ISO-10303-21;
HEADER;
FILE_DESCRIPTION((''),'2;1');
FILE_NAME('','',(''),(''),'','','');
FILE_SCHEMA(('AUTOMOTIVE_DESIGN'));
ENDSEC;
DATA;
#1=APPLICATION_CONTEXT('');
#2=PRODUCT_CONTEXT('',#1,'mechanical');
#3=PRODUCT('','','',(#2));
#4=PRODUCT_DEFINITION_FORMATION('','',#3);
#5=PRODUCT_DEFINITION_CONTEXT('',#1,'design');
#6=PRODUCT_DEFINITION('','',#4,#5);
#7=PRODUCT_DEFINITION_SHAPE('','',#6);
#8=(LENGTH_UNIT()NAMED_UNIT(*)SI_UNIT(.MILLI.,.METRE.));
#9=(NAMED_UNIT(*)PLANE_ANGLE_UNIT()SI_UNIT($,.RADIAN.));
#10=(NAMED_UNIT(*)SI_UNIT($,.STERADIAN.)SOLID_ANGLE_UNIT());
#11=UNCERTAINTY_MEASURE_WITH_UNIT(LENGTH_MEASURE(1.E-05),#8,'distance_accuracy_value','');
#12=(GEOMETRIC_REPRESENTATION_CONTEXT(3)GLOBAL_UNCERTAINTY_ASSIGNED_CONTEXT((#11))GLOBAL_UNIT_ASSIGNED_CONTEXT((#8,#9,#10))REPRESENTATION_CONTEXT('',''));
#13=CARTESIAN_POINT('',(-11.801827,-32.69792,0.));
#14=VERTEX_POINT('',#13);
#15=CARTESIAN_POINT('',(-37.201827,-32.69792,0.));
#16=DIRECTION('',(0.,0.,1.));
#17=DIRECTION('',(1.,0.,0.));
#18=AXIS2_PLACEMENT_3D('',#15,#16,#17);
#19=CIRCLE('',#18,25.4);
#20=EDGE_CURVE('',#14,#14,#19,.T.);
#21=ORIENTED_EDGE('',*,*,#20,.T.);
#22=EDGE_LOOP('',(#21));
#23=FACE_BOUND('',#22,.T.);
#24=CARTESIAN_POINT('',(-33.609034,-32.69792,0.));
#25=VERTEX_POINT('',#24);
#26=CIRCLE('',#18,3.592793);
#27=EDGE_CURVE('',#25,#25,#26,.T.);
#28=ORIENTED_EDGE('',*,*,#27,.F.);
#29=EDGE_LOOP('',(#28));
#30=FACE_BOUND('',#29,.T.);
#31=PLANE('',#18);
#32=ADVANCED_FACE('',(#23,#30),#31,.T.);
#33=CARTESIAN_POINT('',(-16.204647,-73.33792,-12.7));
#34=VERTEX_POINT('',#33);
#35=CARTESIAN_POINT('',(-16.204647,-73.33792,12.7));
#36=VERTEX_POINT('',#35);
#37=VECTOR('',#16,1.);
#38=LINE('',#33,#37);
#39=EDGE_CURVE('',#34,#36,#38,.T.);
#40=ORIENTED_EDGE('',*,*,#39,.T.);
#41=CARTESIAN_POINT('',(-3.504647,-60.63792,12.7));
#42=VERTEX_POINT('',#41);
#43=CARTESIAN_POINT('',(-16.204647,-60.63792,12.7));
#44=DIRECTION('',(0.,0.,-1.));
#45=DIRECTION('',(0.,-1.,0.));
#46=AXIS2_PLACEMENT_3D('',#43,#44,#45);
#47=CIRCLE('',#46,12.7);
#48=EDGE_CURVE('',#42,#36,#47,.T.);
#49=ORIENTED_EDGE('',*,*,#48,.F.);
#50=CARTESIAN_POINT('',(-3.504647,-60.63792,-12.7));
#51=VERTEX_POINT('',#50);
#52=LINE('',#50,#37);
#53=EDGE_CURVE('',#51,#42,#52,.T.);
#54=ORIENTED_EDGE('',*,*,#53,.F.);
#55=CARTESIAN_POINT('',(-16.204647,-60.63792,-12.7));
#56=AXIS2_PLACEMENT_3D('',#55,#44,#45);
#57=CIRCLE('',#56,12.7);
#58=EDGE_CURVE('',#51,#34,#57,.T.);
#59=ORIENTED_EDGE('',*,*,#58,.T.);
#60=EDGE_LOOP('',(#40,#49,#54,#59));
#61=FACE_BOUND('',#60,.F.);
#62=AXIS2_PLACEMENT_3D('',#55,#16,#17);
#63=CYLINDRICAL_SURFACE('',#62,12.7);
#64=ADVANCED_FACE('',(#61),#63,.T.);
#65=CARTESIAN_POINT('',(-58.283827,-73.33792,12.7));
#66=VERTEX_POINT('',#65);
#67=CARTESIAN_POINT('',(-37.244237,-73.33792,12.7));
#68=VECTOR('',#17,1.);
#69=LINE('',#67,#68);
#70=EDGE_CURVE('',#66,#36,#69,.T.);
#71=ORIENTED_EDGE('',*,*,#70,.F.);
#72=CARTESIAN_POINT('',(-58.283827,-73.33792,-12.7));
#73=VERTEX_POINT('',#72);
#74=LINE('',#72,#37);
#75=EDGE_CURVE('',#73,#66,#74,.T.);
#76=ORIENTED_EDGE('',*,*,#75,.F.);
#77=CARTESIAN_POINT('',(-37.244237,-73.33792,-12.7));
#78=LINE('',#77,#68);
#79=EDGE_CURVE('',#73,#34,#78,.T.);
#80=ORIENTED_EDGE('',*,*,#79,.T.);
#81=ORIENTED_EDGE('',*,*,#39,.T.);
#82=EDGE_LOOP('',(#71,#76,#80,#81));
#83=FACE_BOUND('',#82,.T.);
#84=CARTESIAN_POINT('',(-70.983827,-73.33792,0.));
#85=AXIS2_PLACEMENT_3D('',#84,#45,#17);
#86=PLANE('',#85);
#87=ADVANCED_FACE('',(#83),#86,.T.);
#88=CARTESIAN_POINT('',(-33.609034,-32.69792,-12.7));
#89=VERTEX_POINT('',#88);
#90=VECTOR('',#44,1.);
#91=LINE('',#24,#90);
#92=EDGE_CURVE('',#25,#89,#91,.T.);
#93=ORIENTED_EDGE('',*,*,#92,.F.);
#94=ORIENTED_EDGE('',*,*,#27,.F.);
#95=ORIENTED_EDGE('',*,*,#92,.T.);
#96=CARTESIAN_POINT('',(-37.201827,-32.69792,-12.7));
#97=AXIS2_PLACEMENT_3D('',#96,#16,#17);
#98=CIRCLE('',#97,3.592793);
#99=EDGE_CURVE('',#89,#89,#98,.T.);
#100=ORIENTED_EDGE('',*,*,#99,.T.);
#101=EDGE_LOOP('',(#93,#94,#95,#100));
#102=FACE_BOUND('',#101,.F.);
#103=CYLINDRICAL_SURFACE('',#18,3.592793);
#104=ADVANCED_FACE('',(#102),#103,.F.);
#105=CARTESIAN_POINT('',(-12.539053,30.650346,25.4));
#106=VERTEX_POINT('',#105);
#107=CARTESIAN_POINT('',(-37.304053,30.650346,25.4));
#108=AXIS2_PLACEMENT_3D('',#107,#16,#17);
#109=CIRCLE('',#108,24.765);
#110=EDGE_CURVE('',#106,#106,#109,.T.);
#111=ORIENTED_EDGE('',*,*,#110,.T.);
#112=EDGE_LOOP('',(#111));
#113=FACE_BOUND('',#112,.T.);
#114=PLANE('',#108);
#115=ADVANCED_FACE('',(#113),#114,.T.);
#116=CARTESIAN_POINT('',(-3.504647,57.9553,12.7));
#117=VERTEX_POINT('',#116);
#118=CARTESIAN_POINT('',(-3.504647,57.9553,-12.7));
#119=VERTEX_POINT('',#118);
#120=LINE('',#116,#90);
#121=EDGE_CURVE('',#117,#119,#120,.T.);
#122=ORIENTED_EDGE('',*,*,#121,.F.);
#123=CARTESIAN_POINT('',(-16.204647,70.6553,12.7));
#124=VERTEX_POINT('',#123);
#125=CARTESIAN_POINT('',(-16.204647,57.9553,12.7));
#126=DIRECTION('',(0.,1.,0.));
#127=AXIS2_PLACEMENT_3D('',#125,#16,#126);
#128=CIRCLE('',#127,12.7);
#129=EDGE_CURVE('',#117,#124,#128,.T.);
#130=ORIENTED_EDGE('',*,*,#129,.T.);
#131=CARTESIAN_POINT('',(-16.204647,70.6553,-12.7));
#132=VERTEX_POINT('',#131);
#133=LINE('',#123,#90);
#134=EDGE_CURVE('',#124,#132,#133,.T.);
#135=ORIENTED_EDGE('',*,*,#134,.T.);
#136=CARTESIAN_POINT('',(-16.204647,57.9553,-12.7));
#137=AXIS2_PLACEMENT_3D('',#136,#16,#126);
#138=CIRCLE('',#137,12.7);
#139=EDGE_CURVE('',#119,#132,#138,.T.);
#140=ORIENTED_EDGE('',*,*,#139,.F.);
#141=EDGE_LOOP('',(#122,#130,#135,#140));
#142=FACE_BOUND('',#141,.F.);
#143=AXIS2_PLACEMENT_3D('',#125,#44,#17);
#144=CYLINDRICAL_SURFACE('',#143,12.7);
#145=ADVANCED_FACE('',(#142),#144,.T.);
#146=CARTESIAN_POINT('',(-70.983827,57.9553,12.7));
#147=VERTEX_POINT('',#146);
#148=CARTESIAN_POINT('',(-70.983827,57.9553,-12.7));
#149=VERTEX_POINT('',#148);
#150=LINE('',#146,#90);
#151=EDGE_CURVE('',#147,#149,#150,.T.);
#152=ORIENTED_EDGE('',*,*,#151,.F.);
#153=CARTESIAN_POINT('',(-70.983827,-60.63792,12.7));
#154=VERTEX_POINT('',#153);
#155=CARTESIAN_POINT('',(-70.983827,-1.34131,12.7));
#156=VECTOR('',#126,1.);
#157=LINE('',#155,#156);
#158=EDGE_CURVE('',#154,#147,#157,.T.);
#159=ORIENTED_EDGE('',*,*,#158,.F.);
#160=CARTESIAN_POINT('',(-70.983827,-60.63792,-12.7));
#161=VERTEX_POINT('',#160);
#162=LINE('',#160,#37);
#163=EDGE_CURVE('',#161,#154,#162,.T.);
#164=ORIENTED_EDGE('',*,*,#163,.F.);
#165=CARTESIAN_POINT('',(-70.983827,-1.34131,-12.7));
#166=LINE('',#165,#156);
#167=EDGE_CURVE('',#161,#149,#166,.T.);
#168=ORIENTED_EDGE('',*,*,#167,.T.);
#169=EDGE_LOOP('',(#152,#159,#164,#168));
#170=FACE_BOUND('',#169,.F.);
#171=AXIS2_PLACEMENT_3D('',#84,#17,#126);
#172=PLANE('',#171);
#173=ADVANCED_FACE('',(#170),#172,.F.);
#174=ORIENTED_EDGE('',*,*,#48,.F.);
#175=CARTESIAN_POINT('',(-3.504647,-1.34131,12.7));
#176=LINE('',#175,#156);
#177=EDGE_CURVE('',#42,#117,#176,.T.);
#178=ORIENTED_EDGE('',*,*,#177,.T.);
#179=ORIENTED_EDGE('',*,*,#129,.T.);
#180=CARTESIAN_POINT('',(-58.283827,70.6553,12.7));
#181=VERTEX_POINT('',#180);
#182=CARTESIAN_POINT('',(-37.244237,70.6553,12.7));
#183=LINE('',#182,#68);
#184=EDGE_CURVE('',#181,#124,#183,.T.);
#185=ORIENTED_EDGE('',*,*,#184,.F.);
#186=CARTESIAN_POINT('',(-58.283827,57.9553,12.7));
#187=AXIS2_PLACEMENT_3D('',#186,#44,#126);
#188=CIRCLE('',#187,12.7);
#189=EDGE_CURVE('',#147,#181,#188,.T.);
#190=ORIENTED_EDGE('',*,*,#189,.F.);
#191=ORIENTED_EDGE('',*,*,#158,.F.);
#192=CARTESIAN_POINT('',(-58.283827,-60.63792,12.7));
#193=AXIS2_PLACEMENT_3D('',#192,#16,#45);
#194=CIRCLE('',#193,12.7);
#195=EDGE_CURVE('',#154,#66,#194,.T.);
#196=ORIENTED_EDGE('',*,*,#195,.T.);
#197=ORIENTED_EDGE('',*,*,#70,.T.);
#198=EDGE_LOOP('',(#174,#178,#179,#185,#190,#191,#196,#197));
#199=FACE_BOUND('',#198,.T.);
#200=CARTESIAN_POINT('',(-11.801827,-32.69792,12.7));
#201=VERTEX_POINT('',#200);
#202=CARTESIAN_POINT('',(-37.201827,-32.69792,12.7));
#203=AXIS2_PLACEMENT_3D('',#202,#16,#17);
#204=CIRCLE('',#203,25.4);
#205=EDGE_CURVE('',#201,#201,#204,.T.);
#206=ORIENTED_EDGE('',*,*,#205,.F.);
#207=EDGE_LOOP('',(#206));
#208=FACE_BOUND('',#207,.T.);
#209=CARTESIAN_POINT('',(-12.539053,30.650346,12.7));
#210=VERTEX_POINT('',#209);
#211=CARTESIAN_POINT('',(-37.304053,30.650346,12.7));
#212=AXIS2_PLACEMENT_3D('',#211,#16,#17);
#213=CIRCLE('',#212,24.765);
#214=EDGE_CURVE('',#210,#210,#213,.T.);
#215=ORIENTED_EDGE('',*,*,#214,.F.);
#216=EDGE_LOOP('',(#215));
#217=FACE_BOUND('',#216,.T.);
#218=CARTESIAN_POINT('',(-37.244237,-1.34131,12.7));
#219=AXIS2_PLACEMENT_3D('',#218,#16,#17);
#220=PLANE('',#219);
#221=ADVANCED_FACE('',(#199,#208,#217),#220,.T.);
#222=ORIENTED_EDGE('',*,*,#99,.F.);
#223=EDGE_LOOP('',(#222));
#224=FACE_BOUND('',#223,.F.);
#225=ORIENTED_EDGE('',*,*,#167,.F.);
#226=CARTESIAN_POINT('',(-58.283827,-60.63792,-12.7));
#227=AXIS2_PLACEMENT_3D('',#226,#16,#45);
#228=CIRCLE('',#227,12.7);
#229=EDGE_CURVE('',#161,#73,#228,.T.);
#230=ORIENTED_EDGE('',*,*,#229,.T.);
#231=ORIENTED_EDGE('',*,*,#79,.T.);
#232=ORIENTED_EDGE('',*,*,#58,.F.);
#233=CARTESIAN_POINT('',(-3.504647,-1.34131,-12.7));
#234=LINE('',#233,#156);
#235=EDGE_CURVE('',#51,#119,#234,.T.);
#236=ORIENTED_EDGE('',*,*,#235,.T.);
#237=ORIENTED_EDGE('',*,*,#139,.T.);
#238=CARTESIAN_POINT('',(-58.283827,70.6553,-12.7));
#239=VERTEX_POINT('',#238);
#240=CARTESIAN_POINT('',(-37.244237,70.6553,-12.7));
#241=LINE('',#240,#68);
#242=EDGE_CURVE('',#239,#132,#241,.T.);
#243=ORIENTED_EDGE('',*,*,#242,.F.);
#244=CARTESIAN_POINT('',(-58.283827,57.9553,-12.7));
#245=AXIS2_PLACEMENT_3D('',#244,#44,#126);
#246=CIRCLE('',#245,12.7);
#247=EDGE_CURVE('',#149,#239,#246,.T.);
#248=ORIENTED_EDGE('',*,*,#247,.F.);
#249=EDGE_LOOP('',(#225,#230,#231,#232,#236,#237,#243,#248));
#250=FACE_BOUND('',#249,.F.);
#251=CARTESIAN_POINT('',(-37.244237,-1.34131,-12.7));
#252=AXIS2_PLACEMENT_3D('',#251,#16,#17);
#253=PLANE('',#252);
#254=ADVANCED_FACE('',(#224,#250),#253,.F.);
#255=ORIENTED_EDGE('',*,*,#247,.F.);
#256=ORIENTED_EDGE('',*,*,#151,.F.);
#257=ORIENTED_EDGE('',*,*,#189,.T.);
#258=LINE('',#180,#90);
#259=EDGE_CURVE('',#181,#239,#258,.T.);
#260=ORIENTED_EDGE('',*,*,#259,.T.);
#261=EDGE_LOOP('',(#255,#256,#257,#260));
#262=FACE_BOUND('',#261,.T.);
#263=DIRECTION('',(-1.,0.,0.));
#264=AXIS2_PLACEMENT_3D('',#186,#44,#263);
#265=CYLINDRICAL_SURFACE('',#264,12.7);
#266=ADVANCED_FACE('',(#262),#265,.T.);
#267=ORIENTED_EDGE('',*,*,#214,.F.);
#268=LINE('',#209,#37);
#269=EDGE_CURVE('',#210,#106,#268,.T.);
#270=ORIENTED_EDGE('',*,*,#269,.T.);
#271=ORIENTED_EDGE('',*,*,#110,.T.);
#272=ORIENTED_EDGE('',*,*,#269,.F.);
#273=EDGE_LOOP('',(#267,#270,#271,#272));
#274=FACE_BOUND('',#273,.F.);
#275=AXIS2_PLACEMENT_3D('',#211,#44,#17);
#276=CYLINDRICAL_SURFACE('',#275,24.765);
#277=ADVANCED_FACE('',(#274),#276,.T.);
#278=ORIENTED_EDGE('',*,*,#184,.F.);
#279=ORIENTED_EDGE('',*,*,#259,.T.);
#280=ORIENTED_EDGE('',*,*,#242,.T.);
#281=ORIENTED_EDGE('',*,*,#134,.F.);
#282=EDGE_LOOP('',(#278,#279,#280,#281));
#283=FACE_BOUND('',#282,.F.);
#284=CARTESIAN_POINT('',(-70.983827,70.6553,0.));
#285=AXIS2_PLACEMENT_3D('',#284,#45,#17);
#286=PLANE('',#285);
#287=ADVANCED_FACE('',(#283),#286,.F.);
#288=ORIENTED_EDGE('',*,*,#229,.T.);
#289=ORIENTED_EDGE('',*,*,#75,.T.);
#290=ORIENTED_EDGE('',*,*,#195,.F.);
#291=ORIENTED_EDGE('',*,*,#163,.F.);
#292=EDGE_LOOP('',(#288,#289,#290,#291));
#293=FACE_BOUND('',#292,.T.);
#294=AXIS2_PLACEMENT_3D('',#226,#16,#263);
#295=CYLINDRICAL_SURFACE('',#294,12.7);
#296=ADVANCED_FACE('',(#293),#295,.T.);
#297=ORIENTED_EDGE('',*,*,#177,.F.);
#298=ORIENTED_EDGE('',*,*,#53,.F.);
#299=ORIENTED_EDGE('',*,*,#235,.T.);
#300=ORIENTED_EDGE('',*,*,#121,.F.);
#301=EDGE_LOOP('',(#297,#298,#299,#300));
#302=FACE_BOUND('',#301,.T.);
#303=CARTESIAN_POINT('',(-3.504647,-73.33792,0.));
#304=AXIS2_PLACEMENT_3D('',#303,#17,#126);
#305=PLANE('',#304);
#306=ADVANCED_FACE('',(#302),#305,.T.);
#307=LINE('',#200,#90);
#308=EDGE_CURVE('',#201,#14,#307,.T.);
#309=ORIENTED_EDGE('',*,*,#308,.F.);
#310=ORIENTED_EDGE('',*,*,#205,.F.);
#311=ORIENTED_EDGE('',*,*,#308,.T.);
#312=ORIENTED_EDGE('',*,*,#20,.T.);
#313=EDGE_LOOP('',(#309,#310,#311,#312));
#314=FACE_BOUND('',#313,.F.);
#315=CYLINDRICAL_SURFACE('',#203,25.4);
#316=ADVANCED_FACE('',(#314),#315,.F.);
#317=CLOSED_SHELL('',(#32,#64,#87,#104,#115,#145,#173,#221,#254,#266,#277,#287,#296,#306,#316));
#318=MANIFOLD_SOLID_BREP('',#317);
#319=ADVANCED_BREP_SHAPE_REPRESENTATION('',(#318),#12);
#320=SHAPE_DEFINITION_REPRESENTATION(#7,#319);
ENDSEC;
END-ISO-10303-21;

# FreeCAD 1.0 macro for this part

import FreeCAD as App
import Part
import Sketcher
Q = App.Units.Quantity


def edges_at(feature, points):
    """Names of the edges that pass closest to the given points."""
    edges = feature.Shape.Edges
    near = lambda p: min(range(len(edges)), key=lambda i: edges[i].distToShape(Part.Vertex(*p))[0])
    return sorted({f"Edge{near(p) + 1}" for p in points})

doc = App.newDocument("Part")
body = doc.addObject("PartDesign::Body", "Body")

# Sketch on XY plane
sketch1 = doc.addObject("Sketcher::SketchObject", "Sketch")
body.addObject(sketch1)
sketch1.AttachmentSupport = (doc.XY_Plane, [""])
sketch1.MapMode = "FlatFace"
sketch1.addGeometry([
    Part.LineSegment(App.Vector(-71, 71, 0), App.Vector(-71, -73, 0)),
    Part.LineSegment(App.Vector(-71, -73, 0), App.Vector(-4, -73, 0)),
    Part.LineSegment(App.Vector(-4, -73, 0), App.Vector(-4, 71, 0)),
    Part.LineSegment(App.Vector(-4, 71, 0), App.Vector(-71, 71, 0)),
], False)
sketch1.addConstraint([
    Sketcher.Constraint("Coincident", 0, 2, 1, 1),
    Sketcher.Constraint("Coincident", 1, 2, 2, 1),
    Sketcher.Constraint("Coincident", 2, 2, 3, 1),
    Sketcher.Constraint("Coincident", 3, 2, 0, 1),
    Sketcher.Constraint("Vertical", 0),
    Sketcher.Constraint("Horizontal", 1),
    Sketcher.Constraint("Vertical", 2),
    Sketcher.Constraint("Horizontal", 3),
    Sketcher.Constraint("DistanceX", 1, 1, 1, 2, 67.47918),
    Sketcher.Constraint("DistanceY", 0, 2, 0, 1, 143.993221),
    Sketcher.Constraint("DistanceY", -1, 1, 2, 2, 70.6553),
    Sketcher.Constraint("DistanceX", 0, 2, -1, 1, 70.983827),
])
pad1 = doc.addObject("PartDesign::Pad", "Pad")
body.addObject(pad1)
pad1.Profile = sketch1
pad1.Length = Q("1 in")
pad1.Midplane = True
doc.recompute()

fillet = doc.addObject("PartDesign::Fillet", "Fillet")
body.addObject(fillet)
fillet.Base = (pad1, edges_at(pad1, [
    (-70.984, -73.338, 0),
    (-3.505, -73.338, 0),
    (-3.505, 70.655, 0),
    (-70.984, 70.655, 0),
]))
fillet.Radius = Q("0.5 in")

# Sketch on XY plane
sketch2 = doc.addObject("Sketcher::SketchObject", "Sketch001")
body.addObject(sketch2)
sketch2.AttachmentSupport = (doc.XY_Plane, [""])
sketch2.MapMode = "FlatFace"
sketch2.AttachmentOffset = App.Placement(App.Vector(0, 0, 0.5 * 25.4), App.Rotation())
sketch2.addGeometry(Part.Circle(App.Vector(-37, -33, 0), App.Vector(0, 0, 1), 25), False)
sketch2.addConstraint([
    Sketcher.Constraint("Diameter", 0, Q("2 in")),
    Sketcher.Constraint("DistanceY", 0, 3, -1, 1, 32.69792),
    Sketcher.Constraint("DistanceX", 0, 3, -1, 1, 37.201827),
])
pocket1 = doc.addObject("PartDesign::Pocket", "Pocket")
body.addObject(pocket1)
pocket1.Profile = sketch2
pocket1.Length = Q("0.5 in")

# Sketch on XY plane
sketch3 = doc.addObject("Sketcher::SketchObject", "Sketch002")
body.addObject(sketch3)
sketch3.AttachmentSupport = (doc.XY_Plane, [""])
sketch3.MapMode = "FlatFace"
sketch3.addGeometry(Part.Circle(App.Vector(-37.2, -32.7, 0), App.Vector(0, 0, 1), 3.6), False)
sketch3.addConstraint([
    Sketcher.Constraint("Diameter", 0, 7.185586),
    Sketcher.Constraint("DistanceY", 0, 3, -1, 1, 32.69792),
    Sketcher.Constraint("DistanceX", 0, 3, -1, 1, 37.201827),
])
pocket2 = doc.addObject("PartDesign::Pocket", "Pocket001")
body.addObject(pocket2)
pocket2.Profile = sketch3
pocket2.Type = "ThroughAll"

# Sketch on XY plane
sketch4 = doc.addObject("Sketcher::SketchObject", "Sketch003")
body.addObject(sketch4)
sketch4.AttachmentSupport = (doc.XY_Plane, [""])
sketch4.MapMode = "FlatFace"
sketch4.AttachmentOffset = App.Placement(App.Vector(0, 0, 0.5 * 25.4), App.Rotation())
sketch4.addGeometry(Part.Circle(App.Vector(-37, 31, 0), App.Vector(0, 0, 1), 25), False)
sketch4.addConstraint([
    Sketcher.Constraint("Diameter", 0, Q("1.95 in")),
    Sketcher.Constraint("DistanceX", 0, 3, -1, 1, 37.304053),
    Sketcher.Constraint("DistanceY", -1, 1, 0, 3, 30.650346),
])
pad2 = doc.addObject("PartDesign::Pad", "Pad001")
body.addObject(pad2)
pad2.Profile = sketch4
pad2.Length = Q("0.5 in")

doc.recompute()
